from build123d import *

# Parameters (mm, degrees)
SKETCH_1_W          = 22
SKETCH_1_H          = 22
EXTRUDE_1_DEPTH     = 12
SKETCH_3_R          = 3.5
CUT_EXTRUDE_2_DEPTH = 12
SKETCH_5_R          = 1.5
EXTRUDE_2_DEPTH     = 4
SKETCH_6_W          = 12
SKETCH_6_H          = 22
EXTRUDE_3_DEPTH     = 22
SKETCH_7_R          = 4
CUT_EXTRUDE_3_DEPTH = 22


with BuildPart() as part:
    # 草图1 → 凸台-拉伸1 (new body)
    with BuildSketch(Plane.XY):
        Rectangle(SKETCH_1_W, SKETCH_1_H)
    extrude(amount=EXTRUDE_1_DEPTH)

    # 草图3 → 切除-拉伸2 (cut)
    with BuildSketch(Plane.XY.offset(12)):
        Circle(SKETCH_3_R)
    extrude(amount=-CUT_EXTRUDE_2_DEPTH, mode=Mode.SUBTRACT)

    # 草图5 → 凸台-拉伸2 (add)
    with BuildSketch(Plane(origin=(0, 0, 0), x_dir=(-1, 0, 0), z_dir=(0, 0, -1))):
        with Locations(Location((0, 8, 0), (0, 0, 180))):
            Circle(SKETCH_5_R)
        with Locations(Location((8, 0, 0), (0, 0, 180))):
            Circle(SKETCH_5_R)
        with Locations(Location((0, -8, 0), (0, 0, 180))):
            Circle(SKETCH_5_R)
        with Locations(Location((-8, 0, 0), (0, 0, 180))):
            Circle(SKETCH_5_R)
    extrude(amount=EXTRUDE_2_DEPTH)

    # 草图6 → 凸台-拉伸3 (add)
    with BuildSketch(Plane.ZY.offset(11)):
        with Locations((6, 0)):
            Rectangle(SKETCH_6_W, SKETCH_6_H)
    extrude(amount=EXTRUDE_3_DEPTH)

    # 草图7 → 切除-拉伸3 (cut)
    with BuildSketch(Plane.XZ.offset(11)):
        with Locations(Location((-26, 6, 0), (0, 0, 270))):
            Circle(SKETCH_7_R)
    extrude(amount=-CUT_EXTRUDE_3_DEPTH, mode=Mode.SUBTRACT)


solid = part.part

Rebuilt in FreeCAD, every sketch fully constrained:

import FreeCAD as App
import Part
import Sketcher

V = App.Vector

doc = App.newDocument("Part")
params = doc.addObject("Spreadsheet::Sheet", "Params")
for row, (alias, value) in enumerate([
    ("sketch1_width", "22 mm"),
    ("pad1_length", "12 mm"),
    ("sketch2_diameter", "7 mm"),
    ("pocket1_length", "12 mm"),
    ("sketch3_diameter", "3 mm"),
    ("pad2_length", "4 mm"),
    ("sketch4_width", "22 mm"),
    ("sketch4_height", "12 mm"),
    ("pad3_length", "22 mm"),
    ("sketch5_diameter", "8 mm"),
    ("pocket2_length", "22 mm"),
], start=1):
    params.set(f"A{row}", alias)
    params.set(f"B{row}", "=" + value)
    params.setAlias(f"B{row}", alias)

body = doc.addObject("PartDesign::Body", "Body")

# Sketch on XY plane
sketch1 = doc.addObject("Sketcher::SketchObject", "Sketch")
body.addObject(sketch1)
sketch1.AttachmentSupport = (doc.XY_Plane, [""])
sketch1.MapMode = "FlatFace"
sketch1.addGeometry(Part.LineSegment(V(-11, 11, 0), V(-11, -11, 0)), False)
sketch1.addGeometry(Part.LineSegment(V(-11, -11, 0), V(11, -11, 0)), False)
sketch1.addGeometry(Part.LineSegment(V(11, -11, 0), V(11, 11, 0)), False)
sketch1.addGeometry(Part.LineSegment(V(11, 11, 0), V(-11, 11, 0)), False)
sketch1.addConstraint(Sketcher.Constraint("Coincident", 0, 2, 1, 1))
sketch1.addConstraint(Sketcher.Constraint("Coincident", 1, 2, 2, 1))
sketch1.addConstraint(Sketcher.Constraint("Coincident", 2, 2, 3, 1))
sketch1.addConstraint(Sketcher.Constraint("Coincident", 3, 2, 0, 1))
sketch1.addConstraint(Sketcher.Constraint("Vertical", 0))
sketch1.addConstraint(Sketcher.Constraint("Horizontal", 1))
sketch1.addConstraint(Sketcher.Constraint("Vertical", 2))
sketch1.addConstraint(Sketcher.Constraint("Horizontal", 3))
sketch1.addConstraint(Sketcher.Constraint("Symmetric", 0, 2, 2, 2, -1, 1))
sketch1.addConstraint(Sketcher.Constraint("Equal", 3, 0))
sketch1.addConstraint(Sketcher.Constraint("DistanceX", 1, 1, 1, 2, 22.0))
sketch1.setExpression("Constraints[10]", "Params.sketch1_width")
pad1 = doc.addObject("PartDesign::Pad", "Pad")
body.addObject(pad1)
pad1.Profile = sketch1
pad1.setExpression("Length", "Params.pad1_length")

# Sketch on XY plane
sketch2 = doc.addObject("Sketcher::SketchObject", "Sketch001")
body.addObject(sketch2)
sketch2.AttachmentSupport = (doc.XY_Plane, [""])
sketch2.MapMode = "FlatFace"
sketch2.AttachmentOffset = App.Placement(V(0, 0, 12), App.Rotation())
sketch2.addGeometry(Part.Circle(V(0, 0, 0), V(0, 0, 1), 3.5), False)
sketch2.addConstraint(Sketcher.Constraint("Coincident", 0, 3, -1, 1))
sketch2.addConstraint(Sketcher.Constraint("Diameter", 0, 7.0))
sketch2.setExpression("Constraints[1]", "Params.sketch2_diameter")
pocket1 = doc.addObject("PartDesign::Pocket", "Pocket")
body.addObject(pocket1)
pocket1.Profile = sketch2
pocket1.setExpression("Length", "Params.pocket1_length")

# Sketch on XY plane
sketch3 = doc.addObject("Sketcher::SketchObject", "Sketch002")
body.addObject(sketch3)
sketch3.AttachmentSupport = (doc.XY_Plane, [""])
sketch3.MapMode = "FlatFace"
sketch3.addGeometry(Part.Circle(V(0, 8, 0), V(0, 0, 1), 1.5), False)
sketch3.addGeometry(Part.Circle(V(-8, 0, 0), V(0, 0, 1), 1.5), False)
sketch3.addGeometry(Part.Circle(V(0, -8, 0), V(0, 0, 1), 1.5), False)
sketch3.addGeometry(Part.Circle(V(8, 0, 0), V(0, 0, 1), 1.5), False)
sketch3.addConstraint(Sketcher.Constraint("Equal", 0, 1))
sketch3.addConstraint(Sketcher.Constraint("Equal", 1, 2))
sketch3.addConstraint(Sketcher.Constraint("Equal", 2, 3))
sketch3.addConstraint(Sketcher.Constraint("Symmetric", 0, 3, 2, 3, -1, 1))
sketch3.addConstraint(Sketcher.Constraint("Symmetric", 1, 3, 3, 3, -1, 1))
sketch3.addConstraint(Sketcher.Constraint("PointOnObject", 0, 3, -2))
sketch3.addConstraint(Sketcher.Constraint("PointOnObject", 1, 3, -1))
sketch3.addConstraint(Sketcher.Constraint("Diameter", 0, 3.0))
sketch3.addConstraint(Sketcher.Constraint("DistanceY", -1, 1, 0, 3, 8.0))
sketch3.addConstraint(Sketcher.Constraint("DistanceX", 1, 3, -1, 1, 8.0))
sketch3.setExpression("Constraints[7]", "Params.sketch3_diameter")
pad2 = doc.addObject("PartDesign::Pad", "Pad001")
body.addObject(pad2)
pad2.Profile = sketch3
pad2.setExpression("Length", "Params.pad2_length")
pad2.Reversed = True

# Sketch on YZ plane
sketch4 = doc.addObject("Sketcher::SketchObject", "Sketch003")
body.addObject(sketch4)
sketch4.AttachmentSupport = (doc.YZ_Plane, [""])
sketch4.MapMode = "FlatFace"
sketch4.AttachmentOffset = App.Placement(V(0, 0, -11), App.Rotation())
sketch4.addGeometry(Part.LineSegment(V(11, 0, 0), V(-11, 0, 0)), False)
sketch4.addGeometry(Part.LineSegment(V(-11, 0, 0), V(-11, 12, 0)), False)
sketch4.addGeometry(Part.LineSegment(V(-11, 12, 0), V(11, 12, 0)), False)
sketch4.addGeometry(Part.LineSegment(V(11, 12, 0), V(11, 0, 0)), False)
sketch4.addConstraint(Sketcher.Constraint("Coincident", 0, 2, 1, 1))
sketch4.addConstraint(Sketcher.Constraint("Coincident", 1, 2, 2, 1))
sketch4.addConstraint(Sketcher.Constraint("Coincident", 2, 2, 3, 1))
sketch4.addConstraint(Sketcher.Constraint("Coincident", 3, 2, 0, 1))
sketch4.addConstraint(Sketcher.Constraint("Horizontal", 0))
sketch4.addConstraint(Sketcher.Constraint("Vertical", 1))
sketch4.addConstraint(Sketcher.Constraint("Horizontal", 2))
sketch4.addConstraint(Sketcher.Constraint("Vertical", 3))
sketch4.addConstraint(Sketcher.Constraint("Symmetric", 0, 2, 3, 2, -1, 1))
sketch4.addConstraint(Sketcher.Constraint("DistanceX", 0, 2, 0, 1, 22.0))
sketch4.addConstraint(Sketcher.Constraint("DistanceY", 1, 1, 1, 2, 12.0))
sketch4.setExpression("Constraints[9]", "Params.sketch4_width")
sketch4.setExpression("Constraints[10]", "Params.sketch4_height")
pad3 = doc.addObject("PartDesign::Pad", "Pad002")
body.addObject(pad3)
pad3.Profile = sketch4
pad3.setExpression("Length", "Params.pad3_length")
pad3.Reversed = True

# Sketch on XZ plane
sketch5 = doc.addObject("Sketcher::SketchObject", "Sketch004")
body.addObject(sketch5)
sketch5.AttachmentSupport = (doc.XZ_Plane, [""])
sketch5.MapMode = "FlatFace"
sketch5.AttachmentOffset = App.Placement(V(0, 0, 11), App.Rotation())
sketch5.addGeometry(Part.Circle(V(-26, 6, 0), V(0, 0, 1), 4), False)
sketch5.addConstraint(Sketcher.Constraint("Diameter", 0, 8.0))
sketch5.addConstraint(Sketcher.Constraint("DistanceX", 0, 3, -1, 1, 26.0))
sketch5.addConstraint(Sketcher.Constraint("DistanceY", -1, 1, 0, 3, 6.0))
sketch5.setExpression("Constraints[0]", "Params.sketch5_diameter")
pocket2 = doc.addObject("PartDesign::Pocket", "Pocket001")
body.addObject(pocket2)
pocket2.Profile = sketch5
pocket2.setExpression("Length", "Params.pocket2_length")

doc.recompute()
